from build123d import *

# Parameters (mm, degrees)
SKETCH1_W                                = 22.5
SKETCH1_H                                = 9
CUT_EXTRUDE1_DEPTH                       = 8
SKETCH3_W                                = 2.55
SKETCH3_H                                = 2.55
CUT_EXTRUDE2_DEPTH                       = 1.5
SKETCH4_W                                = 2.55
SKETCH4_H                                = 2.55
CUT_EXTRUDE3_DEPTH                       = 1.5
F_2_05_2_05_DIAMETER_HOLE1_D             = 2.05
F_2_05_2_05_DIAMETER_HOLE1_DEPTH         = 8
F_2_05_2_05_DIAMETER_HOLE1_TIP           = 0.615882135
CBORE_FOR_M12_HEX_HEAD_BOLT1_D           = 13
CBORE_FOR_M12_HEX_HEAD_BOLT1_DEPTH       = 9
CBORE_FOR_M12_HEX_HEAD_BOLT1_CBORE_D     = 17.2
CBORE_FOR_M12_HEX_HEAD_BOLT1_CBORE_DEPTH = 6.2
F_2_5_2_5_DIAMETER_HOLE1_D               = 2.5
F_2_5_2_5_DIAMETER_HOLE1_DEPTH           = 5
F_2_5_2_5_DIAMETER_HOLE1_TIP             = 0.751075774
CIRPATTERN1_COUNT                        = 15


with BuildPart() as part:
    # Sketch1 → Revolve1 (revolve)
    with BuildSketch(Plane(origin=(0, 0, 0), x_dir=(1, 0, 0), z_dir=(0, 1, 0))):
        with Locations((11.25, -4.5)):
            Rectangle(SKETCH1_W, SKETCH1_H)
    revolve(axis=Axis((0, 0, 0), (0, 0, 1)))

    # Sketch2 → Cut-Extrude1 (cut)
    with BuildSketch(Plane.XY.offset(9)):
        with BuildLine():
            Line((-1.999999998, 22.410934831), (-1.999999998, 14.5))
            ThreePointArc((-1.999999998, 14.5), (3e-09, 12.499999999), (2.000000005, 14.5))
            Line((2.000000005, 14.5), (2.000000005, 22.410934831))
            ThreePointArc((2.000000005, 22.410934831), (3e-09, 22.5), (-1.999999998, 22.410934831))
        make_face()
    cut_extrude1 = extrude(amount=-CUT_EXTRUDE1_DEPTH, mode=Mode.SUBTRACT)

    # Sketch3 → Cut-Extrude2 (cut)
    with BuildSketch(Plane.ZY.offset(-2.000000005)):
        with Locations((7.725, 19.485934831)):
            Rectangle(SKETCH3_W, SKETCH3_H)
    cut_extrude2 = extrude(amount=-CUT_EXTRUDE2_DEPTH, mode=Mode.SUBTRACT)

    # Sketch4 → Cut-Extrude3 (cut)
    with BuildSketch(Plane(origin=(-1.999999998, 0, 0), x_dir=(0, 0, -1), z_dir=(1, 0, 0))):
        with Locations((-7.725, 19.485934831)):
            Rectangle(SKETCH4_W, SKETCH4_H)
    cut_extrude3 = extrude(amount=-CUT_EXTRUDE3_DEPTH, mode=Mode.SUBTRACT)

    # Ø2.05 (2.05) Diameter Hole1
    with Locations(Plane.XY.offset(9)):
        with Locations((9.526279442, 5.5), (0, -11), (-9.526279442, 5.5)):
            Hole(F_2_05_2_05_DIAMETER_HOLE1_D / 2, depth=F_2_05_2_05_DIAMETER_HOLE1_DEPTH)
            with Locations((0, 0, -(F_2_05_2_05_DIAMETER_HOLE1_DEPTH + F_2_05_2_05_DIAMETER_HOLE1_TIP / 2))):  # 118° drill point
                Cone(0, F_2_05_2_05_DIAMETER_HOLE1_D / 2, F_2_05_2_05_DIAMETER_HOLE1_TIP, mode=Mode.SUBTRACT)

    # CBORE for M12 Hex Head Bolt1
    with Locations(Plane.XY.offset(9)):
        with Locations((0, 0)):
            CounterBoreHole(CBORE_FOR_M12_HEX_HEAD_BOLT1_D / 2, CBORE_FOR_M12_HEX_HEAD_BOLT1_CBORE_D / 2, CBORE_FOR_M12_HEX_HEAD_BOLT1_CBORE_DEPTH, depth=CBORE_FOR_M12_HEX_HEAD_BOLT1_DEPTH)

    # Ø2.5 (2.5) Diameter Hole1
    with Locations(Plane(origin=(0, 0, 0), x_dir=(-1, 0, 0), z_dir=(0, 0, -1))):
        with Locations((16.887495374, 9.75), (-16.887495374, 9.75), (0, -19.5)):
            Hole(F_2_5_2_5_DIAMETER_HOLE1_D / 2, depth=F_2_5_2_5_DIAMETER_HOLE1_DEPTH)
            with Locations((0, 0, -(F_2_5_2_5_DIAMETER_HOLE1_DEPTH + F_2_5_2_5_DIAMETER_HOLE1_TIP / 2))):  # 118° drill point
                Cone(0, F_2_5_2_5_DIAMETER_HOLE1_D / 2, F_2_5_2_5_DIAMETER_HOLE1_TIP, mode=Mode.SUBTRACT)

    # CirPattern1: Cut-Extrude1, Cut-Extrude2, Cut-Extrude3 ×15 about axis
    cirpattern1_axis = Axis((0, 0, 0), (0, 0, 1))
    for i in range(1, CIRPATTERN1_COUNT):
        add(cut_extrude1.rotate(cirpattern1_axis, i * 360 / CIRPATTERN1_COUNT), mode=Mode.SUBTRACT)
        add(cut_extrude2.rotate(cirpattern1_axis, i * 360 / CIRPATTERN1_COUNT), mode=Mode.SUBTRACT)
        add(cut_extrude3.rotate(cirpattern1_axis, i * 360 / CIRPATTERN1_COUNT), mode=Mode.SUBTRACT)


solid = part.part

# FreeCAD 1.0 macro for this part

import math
import FreeCAD as App
import Part
import Sketcher
Q = App.Units.Quantity

doc = App.newDocument("Part")
body = doc.addObject("PartDesign::Body", "Body")

# Sketch on XZ plane
sketch1 = doc.addObject("Sketcher::SketchObject", "Sketch")
body.addObject(sketch1)
sketch1.AttachmentSupport = (doc.XZ_Plane, [""])
sketch1.MapMode = "FlatFace"
sketch1.addGeometry(Part.LineSegment(App.Vector(0, 0, 0), App.Vector(0, 9, 0)), False)
sketch1.addGeometry(Part.LineSegment(App.Vector(0, 9, 0), App.Vector(22, 9, 0)), False)
sketch1.addGeometry(Part.LineSegment(App.Vector(22, 9, 0), App.Vector(22, 0, 0)), False)
sketch1.addGeometry(Part.LineSegment(App.Vector(22, 0, 0), App.Vector(0, 0, 0)), False)
sketch1.addConstraint(Sketcher.Constraint("Coincident", 0, 2, 1, 1))
sketch1.addConstraint(Sketcher.Constraint("Coincident", 1, 2, 2, 1))
sketch1.addConstraint(Sketcher.Constraint("Coincident", 2, 2, 3, 1))
sketch1.addConstraint(Sketcher.Constraint("Coincident", 3, 2, 0, 1))
sketch1.addConstraint(Sketcher.Constraint("Vertical", 0))
sketch1.addConstraint(Sketcher.Constraint("Horizontal", 1))
sketch1.addConstraint(Sketcher.Constraint("Vertical", 2))
sketch1.addConstraint(Sketcher.Constraint("Horizontal", 3))
sketch1.addConstraint(Sketcher.Constraint("Coincident", 3, 2, -1, 1))
sketch1.addConstraint(Sketcher.Constraint("DistanceY", 0, 1, 0, 2, Q("9 mm")))
sketch1.addConstraint(Sketcher.Constraint("DistanceX", 1, 1, 1, 2, Q("22.5 mm")))
revolution = doc.addObject("PartDesign::Revolution", "Revolution")
body.addObject(revolution)
revolution.Profile = sketch1
revolution.ReferenceAxis = (sketch1, ["V_Axis"])
revolution.Angle = 360

# Sketch on XY plane
sketch2 = doc.addObject("Sketcher::SketchObject", "Sketch001")
body.addObject(sketch2)
sketch2.AttachmentSupport = (doc.XY_Plane, [""])
sketch2.MapMode = "FlatFace"
sketch2.AttachmentOffset = App.Placement(App.Vector(0, 0, 9), App.Rotation())
sketch2.addGeometry(Part.LineSegment(App.Vector(-2, 22.4, 0), App.Vector(-2, 14.5, 0)), False)
sketch2.addGeometry(Part.ArcOfCircle(Part.Circle(App.Vector(0, 14.5, 0), App.Vector(0, 0, 1), 2), math.radians(-180), math.radians(0)), False)
sketch2.addGeometry(Part.LineSegment(App.Vector(2, 14.5, 0), App.Vector(2, 22.4, 0)), False)
sketch2.addGeometry(Part.ArcOfCircle(Part.Circle(App.Vector(0, 0, 0), App.Vector(0, 0, 1), 22.5), math.radians(84.9), math.radians(95.1)), False)
sketch2.addConstraint(Sketcher.Constraint("Tangent", 0, 2, 1, 1))
sketch2.addConstraint(Sketcher.Constraint("Tangent", 1, 2, 2, 1))
sketch2.addConstraint(Sketcher.Constraint("Coincident", 2, 2, 3, 1))
sketch2.addConstraint(Sketcher.Constraint("Coincident", 3, 2, 0, 1))
sketch2.addConstraint(Sketcher.Constraint("Vertical", 0))
sketch2.addConstraint(Sketcher.Constraint("Vertical", 2))
sketch2.addConstraint(Sketcher.Constraint("Coincident", 3, 3, -1, 1))
sketch2.addConstraint(Sketcher.Constraint("PointOnObject", 1, 3, -2))
sketch2.addConstraint(Sketcher.Constraint("Radius", 1, Q("2 mm")))
sketch2.addConstraint(Sketcher.Constraint("Radius", 3, Q("22.5 mm")))
sketch2.addConstraint(Sketcher.Constraint("DistanceY", -1, 1, 1, 3, Q("14.5 mm")))
pocket1 = doc.addObject("PartDesign::Pocket", "Pocket")
body.addObject(pocket1)
pocket1.Profile = sketch2
pocket1.Length = 8

# Sketch on YZ plane
sketch3 = doc.addObject("Sketcher::SketchObject", "Sketch002")
body.addObject(sketch3)
sketch3.AttachmentSupport = (doc.YZ_Plane, [""])
sketch3.MapMode = "FlatFace"
sketch3.AttachmentOffset = App.Placement(App.Vector(0, 0, 2), App.Rotation())
sketch3.addGeometry(Part.LineSegment(App.Vector(20.8, 6.5, 0), App.Vector(18.2, 6.5, 0)), False)
sketch3.addGeometry(Part.LineSegment(App.Vector(18.2, 6.5, 0), App.Vector(18.2, 9, 0)), False)
sketch3.addGeometry(Part.LineSegment(App.Vector(18.2, 9, 0), App.Vector(20.8, 9, 0)), False)
sketch3.addGeometry(Part.LineSegment(App.Vector(20.8, 9, 0), App.Vector(20.8, 6.5, 0)), False)
sketch3.addConstraint(Sketcher.Constraint("Coincident", 0, 2, 1, 1))
sketch3.addConstraint(Sketcher.Constraint("Coincident", 1, 2, 2, 1))
sketch3.addConstraint(Sketcher.Constraint("Coincident", 2, 2, 3, 1))
sketch3.addConstraint(Sketcher.Constraint("Coincident", 3, 2, 0, 1))
sketch3.addConstraint(Sketcher.Constraint("Horizontal", 0))
sketch3.addConstraint(Sketcher.Constraint("Vertical", 1))
sketch3.addConstraint(Sketcher.Constraint("Horizontal", 2))
sketch3.addConstraint(Sketcher.Constraint("Vertical", 3))
sketch3.addConstraint(Sketcher.Constraint("Equal", 2, 1))
sketch3.addConstraint(Sketcher.Constraint("DistanceY", -1, 1, 1, 2, Q("9 mm")))
sketch3.addConstraint(Sketcher.Constraint("DistanceX", 0, 2, 0, 1, Q("2.55 mm")))
sketch3.addConstraint(Sketcher.Constraint("DistanceX", -1, 1, 0, 2, Q("18.210935 mm")))
pocket2 = doc.addObject("PartDesign::Pocket", "Pocket001")
body.addObject(pocket2)
pocket2.Profile = sketch3
pocket2.Length = 1.5
pocket2.Reversed = True

# Sketch on YZ plane
sketch4 = doc.addObject("Sketcher::SketchObject", "Sketch003")
body.addObject(sketch4)
sketch4.AttachmentSupport = (doc.YZ_Plane, [""])
sketch4.MapMode = "FlatFace"
sketch4.AttachmentOffset = App.Placement(App.Vector(0, 0, -2), App.Rotation())
sketch4.addGeometry(Part.LineSegment(App.Vector(20.8, 9, 0), App.Vector(18.2, 9, 0)), False)
sketch4.addGeometry(Part.LineSegment(App.Vector(18.2, 9, 0), App.Vector(18.2, 6.5, 0)), False)
sketch4.addGeometry(Part.LineSegment(App.Vector(18.2, 6.5, 0), App.Vector(20.8, 6.5, 0)), False)
sketch4.addGeometry(Part.LineSegment(App.Vector(20.8, 6.5, 0), App.Vector(20.8, 9, 0)), False)
sketch4.addConstraint(Sketcher.Constraint("Coincident", 0, 2, 1, 1))
sketch4.addConstraint(Sketcher.Constraint("Coincident", 1, 2, 2, 1))
sketch4.addConstraint(Sketcher.Constraint("Coincident", 2, 2, 3, 1))
sketch4.addConstraint(Sketcher.Constraint("Coincident", 3, 2, 0, 1))
sketch4.addConstraint(Sketcher.Constraint("Horizontal", 0))
sketch4.addConstraint(Sketcher.Constraint("Vertical", 1))
sketch4.addConstraint(Sketcher.Constraint("Horizontal", 2))
sketch4.addConstraint(Sketcher.Constraint("Vertical", 3))
sketch4.addConstraint(Sketcher.Constraint("Equal", 2, 1))
sketch4.addConstraint(Sketcher.Constraint("DistanceY", -1, 1, 0, 2, Q("9 mm")))
sketch4.addConstraint(Sketcher.Constraint("DistanceX", 0, 2, 0, 1, Q("2.55 mm")))
sketch4.addConstraint(Sketcher.Constraint("DistanceX", -1, 1, 0, 2, Q("18.210935 mm")))
pocket3 = doc.addObject("PartDesign::Pocket", "Pocket002")
body.addObject(pocket3)
pocket3.Profile = sketch4
pocket3.Length = 1.5

# Sketch on XY plane
sketch5 = doc.addObject("Sketcher::SketchObject", "Sketch004")
body.addObject(sketch5)
sketch5.AttachmentSupport = (doc.XY_Plane, [""])
sketch5.MapMode = "FlatFace"
sketch5.AttachmentOffset = App.Placement(App.Vector(0, 0, 9), App.Rotation())
sketch5.addGeometry(Part.Circle(App.Vector(9.5, 5.5, 0), App.Vector(0, 0, 1), 1), False)
sketch5.addGeometry(Part.Circle(App.Vector(0, -11, 0), App.Vector(0, 0, 1), 1), False)
sketch5.addGeometry(Part.Circle(App.Vector(-9.5, 5.5, 0), App.Vector(0, 0, 1), 1), False)
sketch5.addConstraint(Sketcher.Constraint("Equal", 0, 1))
sketch5.addConstraint(Sketcher.Constraint("Equal", 1, 2))
sketch5.addConstraint(Sketcher.Constraint("Symmetric", 0, 3, 2, 3, -2))
sketch5.addConstraint(Sketcher.Constraint("PointOnObject", 1, 3, -2))
sketch5.addConstraint(Sketcher.Constraint("Diameter", 0, Q("2.05 mm")))
sketch5.addConstraint(Sketcher.Constraint("DistanceY", 1, 3, -1, 1, Q("11 mm")))
sketch5.addConstraint(Sketcher.Constraint("DistanceY", -1, 1, 0, 3, Q("5.5 mm")))
sketch5.addConstraint(Sketcher.Constraint("DistanceX", -1, 1, 0, 3, Q("9.526279 mm")))
doc.recompute()
hole = doc.addObject("PartDesign::Hole", "Hole")
body.addObject(hole)
hole.Profile = sketch5
hole.ThreadType = "None"
hole.Diameter = 2.05
hole.DepthType = "Dimension"
hole.Depth = 8
hole.DrillPoint = "Angled"
hole.DrillPointAngle = 118

# Sketch on XY plane
sketch6 = doc.addObject("Sketcher::SketchObject", "Sketch005")
body.addObject(sketch6)
sketch6.AttachmentSupport = (doc.XY_Plane, [""])
sketch6.MapMode = "FlatFace"
sketch6.AttachmentOffset = App.Placement(App.Vector(0, 0, 9), App.Rotation())
sketch6.addGeometry(Part.Circle(App.Vector(0, 0, 0), App.Vector(0, 0, 1), 6), False)
sketch6.addConstraint(Sketcher.Constraint("Coincident", 0, 3, -1, 1))
sketch6.addConstraint(Sketcher.Constraint("Diameter", 0, Q("13 mm")))
doc.recompute()
hole2 = doc.addObject("PartDesign::Hole", "Hole001")
body.addObject(hole2)
hole2.Profile = sketch6
hole2.ThreadType = "None"
hole2.Diameter = 13
hole2.DepthType = "Dimension"
hole2.Depth = 9
hole2.DrillPoint = "Flat"
hole2.HoleCutType = "Counterbore"
hole2.HoleCutDiameter = 17.2
hole2.HoleCutDepth = 6.2

# Sketch on XY plane
sketch7 = doc.addObject("Sketcher::SketchObject", "Sketch006")
body.addObject(sketch7)
sketch7.AttachmentSupport = (doc.XY_Plane, [""])
sketch7.MapMode = "FlatFace"
sketch7.addGeometry(Part.Circle(App.Vector(-16.9, 9.8, 0), App.Vector(0, 0, 1), 1.2), False)
sketch7.addGeometry(Part.Circle(App.Vector(16.9, 9.8, 0), App.Vector(0, 0, 1), 1.2), False)
sketch7.addGeometry(Part.Circle(App.Vector(0, -19.5, 0), App.Vector(0, 0, 1), 1.2), False)
sketch7.addConstraint(Sketcher.Constraint("Equal", 0, 1))
sketch7.addConstraint(Sketcher.Constraint("Equal", 1, 2))
sketch7.addConstraint(Sketcher.Constraint("Symmetric", 0, 3, 1, 3, -2))
sketch7.addConstraint(Sketcher.Constraint("PointOnObject", 2, 3, -2))
sketch7.addConstraint(Sketcher.Constraint("Diameter", 0, Q("2.5 mm")))
sketch7.addConstraint(Sketcher.Constraint("DistanceY", 2, 3, -1, 1, Q("19.5 mm")))
sketch7.addConstraint(Sketcher.Constraint("DistanceY", -1, 1, 0, 3, Q("9.75 mm")))
sketch7.addConstraint(Sketcher.Constraint("DistanceX", 0, 3, 1, 3, Q("33.774991 mm")))
doc.recompute()
hole3 = doc.addObject("PartDesign::Hole", "Hole002")
body.addObject(hole3)
hole3.Profile = sketch7
hole3.ThreadType = "None"
hole3.Diameter = 2.5
hole3.DepthType = "Dimension"
hole3.Depth = 5
hole3.DrillPoint = "Angled"
hole3.DrillPointAngle = 118
hole3.Reversed = True
doc.recompute()

polarpattern = doc.addObject("PartDesign::PolarPattern", "PolarPattern")
body.addObject(polarpattern)
polarpattern.Originals = [pocket1, pocket2, pocket3]
polarpattern.Axis = (doc.Z_Axis, [""])
polarpattern.Angle = 360
polarpattern.Occurrences = 15
body.Tip = polarpattern

doc.recompute()
